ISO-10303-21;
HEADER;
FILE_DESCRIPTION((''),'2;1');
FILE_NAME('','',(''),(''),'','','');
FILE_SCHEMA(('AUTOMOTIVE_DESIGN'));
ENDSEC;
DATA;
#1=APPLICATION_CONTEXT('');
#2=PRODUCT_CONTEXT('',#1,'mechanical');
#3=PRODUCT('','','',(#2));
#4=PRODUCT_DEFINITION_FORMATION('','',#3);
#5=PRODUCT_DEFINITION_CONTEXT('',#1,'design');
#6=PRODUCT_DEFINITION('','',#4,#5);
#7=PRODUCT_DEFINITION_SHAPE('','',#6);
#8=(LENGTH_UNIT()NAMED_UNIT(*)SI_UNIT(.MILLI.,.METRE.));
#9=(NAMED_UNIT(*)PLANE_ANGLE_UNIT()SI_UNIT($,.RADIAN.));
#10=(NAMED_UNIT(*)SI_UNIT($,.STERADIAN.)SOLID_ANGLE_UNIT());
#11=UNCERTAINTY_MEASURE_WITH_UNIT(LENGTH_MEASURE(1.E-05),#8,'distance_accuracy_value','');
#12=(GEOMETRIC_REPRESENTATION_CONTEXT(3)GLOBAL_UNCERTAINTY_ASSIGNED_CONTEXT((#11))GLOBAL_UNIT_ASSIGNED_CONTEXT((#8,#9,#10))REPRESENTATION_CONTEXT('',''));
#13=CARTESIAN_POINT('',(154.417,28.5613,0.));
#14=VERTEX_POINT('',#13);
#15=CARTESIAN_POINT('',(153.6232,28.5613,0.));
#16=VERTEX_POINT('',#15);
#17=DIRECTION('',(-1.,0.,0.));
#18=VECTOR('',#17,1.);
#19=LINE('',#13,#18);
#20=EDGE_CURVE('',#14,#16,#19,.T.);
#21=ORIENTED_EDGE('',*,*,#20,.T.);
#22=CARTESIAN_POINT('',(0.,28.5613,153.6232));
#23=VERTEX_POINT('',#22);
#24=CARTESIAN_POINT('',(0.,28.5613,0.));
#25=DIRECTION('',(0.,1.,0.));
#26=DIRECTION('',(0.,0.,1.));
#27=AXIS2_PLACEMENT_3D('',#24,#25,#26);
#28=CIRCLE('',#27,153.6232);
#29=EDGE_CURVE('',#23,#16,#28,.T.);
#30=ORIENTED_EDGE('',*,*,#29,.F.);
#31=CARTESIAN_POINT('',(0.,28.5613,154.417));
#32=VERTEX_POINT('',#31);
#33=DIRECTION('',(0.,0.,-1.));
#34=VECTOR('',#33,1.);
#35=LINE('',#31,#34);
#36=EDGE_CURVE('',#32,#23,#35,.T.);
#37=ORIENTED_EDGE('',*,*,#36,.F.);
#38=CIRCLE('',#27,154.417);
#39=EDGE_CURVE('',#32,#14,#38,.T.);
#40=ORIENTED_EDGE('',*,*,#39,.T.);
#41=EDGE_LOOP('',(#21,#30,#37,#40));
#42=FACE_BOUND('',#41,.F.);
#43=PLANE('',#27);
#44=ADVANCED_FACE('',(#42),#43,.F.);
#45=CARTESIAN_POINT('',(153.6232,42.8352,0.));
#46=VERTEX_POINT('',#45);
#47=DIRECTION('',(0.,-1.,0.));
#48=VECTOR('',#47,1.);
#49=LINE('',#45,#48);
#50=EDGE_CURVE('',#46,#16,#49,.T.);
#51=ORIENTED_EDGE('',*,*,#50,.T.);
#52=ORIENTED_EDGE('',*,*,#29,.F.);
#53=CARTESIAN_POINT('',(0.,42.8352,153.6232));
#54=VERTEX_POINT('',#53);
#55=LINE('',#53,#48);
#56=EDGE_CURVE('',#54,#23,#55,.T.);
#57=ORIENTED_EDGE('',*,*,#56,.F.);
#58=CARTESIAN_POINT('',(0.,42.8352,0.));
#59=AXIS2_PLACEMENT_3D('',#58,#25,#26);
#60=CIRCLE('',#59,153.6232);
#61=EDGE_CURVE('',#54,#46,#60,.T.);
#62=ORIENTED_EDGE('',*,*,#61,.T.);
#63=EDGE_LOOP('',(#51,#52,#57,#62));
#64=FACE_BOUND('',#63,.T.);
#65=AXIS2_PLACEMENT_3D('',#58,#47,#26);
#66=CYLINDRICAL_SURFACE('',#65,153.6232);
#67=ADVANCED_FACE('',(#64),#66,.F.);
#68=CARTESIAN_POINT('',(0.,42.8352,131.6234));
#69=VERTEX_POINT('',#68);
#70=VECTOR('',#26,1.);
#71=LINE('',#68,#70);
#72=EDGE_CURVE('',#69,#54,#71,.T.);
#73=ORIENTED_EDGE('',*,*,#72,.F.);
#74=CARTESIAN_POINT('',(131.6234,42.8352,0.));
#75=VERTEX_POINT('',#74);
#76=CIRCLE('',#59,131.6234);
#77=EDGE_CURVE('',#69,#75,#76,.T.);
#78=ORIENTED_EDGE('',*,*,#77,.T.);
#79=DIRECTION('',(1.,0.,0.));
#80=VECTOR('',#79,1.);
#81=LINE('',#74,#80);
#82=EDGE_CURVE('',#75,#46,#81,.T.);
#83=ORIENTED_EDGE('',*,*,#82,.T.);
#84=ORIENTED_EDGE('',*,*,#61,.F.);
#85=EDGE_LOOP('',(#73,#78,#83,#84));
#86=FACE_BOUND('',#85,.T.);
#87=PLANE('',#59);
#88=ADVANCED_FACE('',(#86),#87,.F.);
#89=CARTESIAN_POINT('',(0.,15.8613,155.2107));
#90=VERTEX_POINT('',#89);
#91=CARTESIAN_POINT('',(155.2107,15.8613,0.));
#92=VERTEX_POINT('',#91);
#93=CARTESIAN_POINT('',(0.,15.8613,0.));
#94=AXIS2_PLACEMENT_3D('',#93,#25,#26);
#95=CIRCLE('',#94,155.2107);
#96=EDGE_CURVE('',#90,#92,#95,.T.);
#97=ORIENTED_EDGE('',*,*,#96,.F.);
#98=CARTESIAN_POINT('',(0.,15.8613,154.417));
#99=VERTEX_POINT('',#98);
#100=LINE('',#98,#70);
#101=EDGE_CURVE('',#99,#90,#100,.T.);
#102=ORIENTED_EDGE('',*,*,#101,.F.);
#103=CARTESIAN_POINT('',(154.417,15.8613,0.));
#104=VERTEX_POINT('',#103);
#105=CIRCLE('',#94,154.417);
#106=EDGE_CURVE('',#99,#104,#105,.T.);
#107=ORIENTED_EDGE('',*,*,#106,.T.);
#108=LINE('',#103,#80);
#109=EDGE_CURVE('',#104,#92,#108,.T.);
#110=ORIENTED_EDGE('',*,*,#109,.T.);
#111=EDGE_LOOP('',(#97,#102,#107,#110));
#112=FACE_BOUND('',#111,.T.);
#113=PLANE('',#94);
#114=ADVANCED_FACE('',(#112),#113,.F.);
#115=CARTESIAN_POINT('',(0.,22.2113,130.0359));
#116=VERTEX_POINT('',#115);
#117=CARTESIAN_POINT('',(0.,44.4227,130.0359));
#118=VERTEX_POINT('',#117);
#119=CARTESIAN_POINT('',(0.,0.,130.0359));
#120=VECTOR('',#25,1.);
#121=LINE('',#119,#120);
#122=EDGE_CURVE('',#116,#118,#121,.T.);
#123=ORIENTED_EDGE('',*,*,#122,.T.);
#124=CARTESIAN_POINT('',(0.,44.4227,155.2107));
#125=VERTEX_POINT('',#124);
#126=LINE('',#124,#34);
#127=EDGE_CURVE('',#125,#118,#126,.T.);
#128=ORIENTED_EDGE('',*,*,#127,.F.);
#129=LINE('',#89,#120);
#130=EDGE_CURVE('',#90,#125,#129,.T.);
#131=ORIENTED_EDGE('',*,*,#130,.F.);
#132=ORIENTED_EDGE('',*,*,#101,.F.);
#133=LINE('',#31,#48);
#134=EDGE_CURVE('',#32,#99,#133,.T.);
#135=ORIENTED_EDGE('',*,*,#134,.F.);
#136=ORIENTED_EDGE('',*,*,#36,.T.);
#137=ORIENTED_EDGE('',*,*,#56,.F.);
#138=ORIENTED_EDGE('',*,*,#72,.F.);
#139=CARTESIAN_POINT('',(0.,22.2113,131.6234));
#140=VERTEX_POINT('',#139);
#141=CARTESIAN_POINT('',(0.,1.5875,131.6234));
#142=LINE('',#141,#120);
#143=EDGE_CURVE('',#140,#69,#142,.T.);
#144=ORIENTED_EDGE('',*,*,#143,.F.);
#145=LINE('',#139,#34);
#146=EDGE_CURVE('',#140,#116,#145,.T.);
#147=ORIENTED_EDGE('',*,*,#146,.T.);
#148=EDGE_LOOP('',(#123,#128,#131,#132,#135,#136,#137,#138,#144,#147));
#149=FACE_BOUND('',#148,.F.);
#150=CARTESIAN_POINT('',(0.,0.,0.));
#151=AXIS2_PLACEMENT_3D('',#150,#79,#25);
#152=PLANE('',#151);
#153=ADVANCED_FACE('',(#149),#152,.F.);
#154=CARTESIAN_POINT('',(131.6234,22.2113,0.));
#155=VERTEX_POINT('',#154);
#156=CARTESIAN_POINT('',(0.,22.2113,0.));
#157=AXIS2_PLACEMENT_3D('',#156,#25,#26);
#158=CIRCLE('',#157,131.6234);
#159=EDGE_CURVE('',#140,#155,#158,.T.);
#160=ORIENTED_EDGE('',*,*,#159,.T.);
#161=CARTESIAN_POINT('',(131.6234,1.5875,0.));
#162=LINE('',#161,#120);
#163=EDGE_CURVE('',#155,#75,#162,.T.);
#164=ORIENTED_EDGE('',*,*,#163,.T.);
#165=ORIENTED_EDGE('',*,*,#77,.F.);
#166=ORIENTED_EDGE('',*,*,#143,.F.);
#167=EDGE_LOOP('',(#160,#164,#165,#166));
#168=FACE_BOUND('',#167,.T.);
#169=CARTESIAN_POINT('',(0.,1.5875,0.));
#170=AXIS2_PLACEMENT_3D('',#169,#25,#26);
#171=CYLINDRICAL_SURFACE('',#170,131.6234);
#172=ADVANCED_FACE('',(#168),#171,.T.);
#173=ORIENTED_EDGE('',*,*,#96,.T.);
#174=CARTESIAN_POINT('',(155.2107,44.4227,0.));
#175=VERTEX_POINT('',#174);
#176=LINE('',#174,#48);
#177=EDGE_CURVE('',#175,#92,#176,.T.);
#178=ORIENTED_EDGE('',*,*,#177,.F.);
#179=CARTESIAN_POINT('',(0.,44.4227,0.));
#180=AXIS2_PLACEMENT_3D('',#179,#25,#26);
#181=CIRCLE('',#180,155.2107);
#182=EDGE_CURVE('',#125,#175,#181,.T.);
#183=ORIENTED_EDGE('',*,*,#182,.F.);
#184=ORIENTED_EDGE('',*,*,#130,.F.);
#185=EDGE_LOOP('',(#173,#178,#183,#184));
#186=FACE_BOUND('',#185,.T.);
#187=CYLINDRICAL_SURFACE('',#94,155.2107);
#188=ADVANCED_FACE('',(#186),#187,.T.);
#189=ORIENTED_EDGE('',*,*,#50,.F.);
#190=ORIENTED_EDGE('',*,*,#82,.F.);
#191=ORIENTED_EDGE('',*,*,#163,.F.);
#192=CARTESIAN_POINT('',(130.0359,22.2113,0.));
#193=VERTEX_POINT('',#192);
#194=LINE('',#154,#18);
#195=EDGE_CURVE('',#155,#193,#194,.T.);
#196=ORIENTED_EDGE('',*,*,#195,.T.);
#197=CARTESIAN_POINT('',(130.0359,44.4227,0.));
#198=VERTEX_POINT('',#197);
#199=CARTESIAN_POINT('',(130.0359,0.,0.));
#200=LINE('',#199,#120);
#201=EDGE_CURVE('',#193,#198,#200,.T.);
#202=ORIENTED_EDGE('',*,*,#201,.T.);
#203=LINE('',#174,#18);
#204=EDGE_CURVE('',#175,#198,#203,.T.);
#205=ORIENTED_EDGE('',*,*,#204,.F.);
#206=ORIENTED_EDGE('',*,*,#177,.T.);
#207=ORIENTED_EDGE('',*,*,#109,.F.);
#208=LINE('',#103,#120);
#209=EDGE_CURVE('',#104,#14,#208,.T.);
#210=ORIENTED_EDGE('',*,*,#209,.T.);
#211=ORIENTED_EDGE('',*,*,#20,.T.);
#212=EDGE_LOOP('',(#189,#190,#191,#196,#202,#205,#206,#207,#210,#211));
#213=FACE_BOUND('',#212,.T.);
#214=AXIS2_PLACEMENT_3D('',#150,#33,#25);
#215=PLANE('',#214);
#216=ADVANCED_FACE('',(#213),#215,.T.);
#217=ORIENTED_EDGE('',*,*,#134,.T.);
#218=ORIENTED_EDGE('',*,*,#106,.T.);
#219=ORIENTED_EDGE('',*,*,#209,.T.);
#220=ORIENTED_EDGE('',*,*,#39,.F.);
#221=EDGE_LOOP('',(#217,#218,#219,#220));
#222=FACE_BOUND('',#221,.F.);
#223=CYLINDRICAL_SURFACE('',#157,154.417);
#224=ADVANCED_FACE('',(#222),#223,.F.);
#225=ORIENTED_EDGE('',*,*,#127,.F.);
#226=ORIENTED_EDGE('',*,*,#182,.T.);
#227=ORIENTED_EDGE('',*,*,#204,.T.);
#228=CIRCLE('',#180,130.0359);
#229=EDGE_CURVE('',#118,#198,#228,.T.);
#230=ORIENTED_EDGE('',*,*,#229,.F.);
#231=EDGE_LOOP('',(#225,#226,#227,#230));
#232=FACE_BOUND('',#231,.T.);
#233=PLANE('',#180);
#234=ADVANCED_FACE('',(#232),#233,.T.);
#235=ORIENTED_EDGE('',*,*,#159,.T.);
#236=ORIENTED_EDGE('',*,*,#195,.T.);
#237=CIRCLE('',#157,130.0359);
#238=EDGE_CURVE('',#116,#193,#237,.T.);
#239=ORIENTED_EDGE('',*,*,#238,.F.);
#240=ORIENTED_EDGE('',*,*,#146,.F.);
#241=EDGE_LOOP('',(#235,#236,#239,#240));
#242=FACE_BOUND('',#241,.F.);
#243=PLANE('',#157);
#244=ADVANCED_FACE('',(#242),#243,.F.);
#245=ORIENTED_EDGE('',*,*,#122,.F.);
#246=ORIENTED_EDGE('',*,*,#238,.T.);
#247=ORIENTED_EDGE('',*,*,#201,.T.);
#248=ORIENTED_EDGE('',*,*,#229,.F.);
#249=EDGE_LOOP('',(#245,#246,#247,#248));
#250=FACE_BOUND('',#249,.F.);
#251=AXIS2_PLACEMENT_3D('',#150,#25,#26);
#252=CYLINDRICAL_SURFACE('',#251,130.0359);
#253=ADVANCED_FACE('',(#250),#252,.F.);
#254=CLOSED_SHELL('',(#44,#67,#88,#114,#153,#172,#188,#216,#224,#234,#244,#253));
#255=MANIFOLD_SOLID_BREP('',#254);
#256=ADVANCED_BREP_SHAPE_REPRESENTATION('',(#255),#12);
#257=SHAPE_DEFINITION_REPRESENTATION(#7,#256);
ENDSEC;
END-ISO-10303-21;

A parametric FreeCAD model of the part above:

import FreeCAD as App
import Part
import Sketcher

V = App.Vector
Q = App.Units.Quantity

doc = App.newDocument("Part")
params = doc.addObject("Spreadsheet::Sheet", "Params")
for row, (alias, value) in enumerate([
    ("sketch1_height", "0.0625 in"),
    ("revolution_angle", "90 deg"),
], start=1):
    params.set(f"A{row}", alias)
    params.set(f"B{row}", "=" + value)
    params.setAlias(f"B{row}", alias)

body = doc.addObject("PartDesign::Body", "Body")

# Sketch on YZ plane
sketch1 = body.newObject("Sketcher::SketchObject", "Sketch")
sketch1.AttachmentSupport = (doc.getObject("YZ_Plane"), [""])
sketch1.MapMode = "FlatFace"
sketch1.addGeometry([
    Part.LineSegment(V(22.2, 131.6, 0), V(22.2, 130, 0)),  # 0
    Part.LineSegment(V(22.2, 130, 0), V(44.4, 130, 0)),  # 1
    Part.LineSegment(V(44.4, 130, 0), V(44.4, 155.2, 0)),  # 2
    Part.LineSegment(V(44.4, 155.2, 0), V(15.9, 155.2, 0)),  # 3
    Part.LineSegment(V(15.9, 155.2, 0), V(15.9, 154.4, 0)),  # 4
    Part.LineSegment(V(15.9, 154.4, 0), V(28.6, 154.4, 0)),  # 5
    Part.LineSegment(V(28.6, 154.4, 0), V(28.6, 153.6, 0)),  # 6
    Part.LineSegment(V(28.6, 153.6, 0), V(42.8, 153.6, 0)),  # 7
    Part.LineSegment(V(42.8, 153.6, 0), V(42.8, 131.6, 0)),  # 8
    Part.LineSegment(V(42.8, 131.6, 0), V(22.2, 131.6, 0)),  # 9
], False)
sketch1.addConstraint([
    Sketcher.Constraint("Coincident", 0, 2, 1, 1),
    Sketcher.Constraint("Coincident", 1, 2, 2, 1),
    Sketcher.Constraint("Coincident", 2, 2, 3, 1),
    Sketcher.Constraint("Coincident", 3, 2, 4, 1),
    Sketcher.Constraint("Coincident", 4, 2, 5, 1),
    Sketcher.Constraint("Coincident", 5, 2, 6, 1),
    Sketcher.Constraint("Coincident", 6, 2, 7, 1),
    Sketcher.Constraint("Coincident", 7, 2, 8, 1),
    Sketcher.Constraint("Coincident", 8, 2, 9, 1),
    Sketcher.Constraint("Coincident", 9, 2, 0, 1),
    Sketcher.Constraint("Vertical", 0),
    Sketcher.Constraint("Horizontal", 1),
    Sketcher.Constraint("Vertical", 2),
    Sketcher.Constraint("Horizontal", 3),
    Sketcher.Constraint("Vertical", 4),
    Sketcher.Constraint("Horizontal", 5),
    Sketcher.Constraint("Vertical", 6),
    Sketcher.Constraint("Horizontal", 7),
    Sketcher.Constraint("Vertical", 8),
    Sketcher.Constraint("Horizontal", 9),
    Sketcher.Constraint("Equal", 4, 6),
    Sketcher.Constraint("DistanceY", 0, 2, 0, 1, Q("0.0625 in")),
    Sketcher.Constraint("DistanceX", 3, 2, 0, 2, Q("0.25 in")),
    Sketcher.Constraint("DistanceX", 0, 2, 5, 2, Q("0.25 in")),
    Sketcher.Constraint("DistanceY", 6, 2, 3, 2, Q("0.0625 in")),
    Sketcher.Constraint("DistanceX", 7, 2, 2, 2, Q("0.0625 in")),
    Sketcher.Constraint("DistanceX", 1, 1, 1, 2, 22.2114),
    Sketcher.Constraint("DistanceY", 2, 1, 2, 2, 25.1748),
    Sketcher.Constraint("DistanceX", -1, 1, 0, 2, 22.2113),
    Sketcher.Constraint("DistanceY", -1, 1, 0, 2, 130.036),
])
sketch1.setExpression("Constraints[21]", "Params.sketch1_height")
revolution = body.newObject("PartDesign::Revolution", "Revolution")
revolution.Profile = sketch1
revolution.ReferenceAxis = (sketch1, ["H_Axis"])
revolution.setExpression("Angle", "Params.revolution_angle")

doc.recompute()
